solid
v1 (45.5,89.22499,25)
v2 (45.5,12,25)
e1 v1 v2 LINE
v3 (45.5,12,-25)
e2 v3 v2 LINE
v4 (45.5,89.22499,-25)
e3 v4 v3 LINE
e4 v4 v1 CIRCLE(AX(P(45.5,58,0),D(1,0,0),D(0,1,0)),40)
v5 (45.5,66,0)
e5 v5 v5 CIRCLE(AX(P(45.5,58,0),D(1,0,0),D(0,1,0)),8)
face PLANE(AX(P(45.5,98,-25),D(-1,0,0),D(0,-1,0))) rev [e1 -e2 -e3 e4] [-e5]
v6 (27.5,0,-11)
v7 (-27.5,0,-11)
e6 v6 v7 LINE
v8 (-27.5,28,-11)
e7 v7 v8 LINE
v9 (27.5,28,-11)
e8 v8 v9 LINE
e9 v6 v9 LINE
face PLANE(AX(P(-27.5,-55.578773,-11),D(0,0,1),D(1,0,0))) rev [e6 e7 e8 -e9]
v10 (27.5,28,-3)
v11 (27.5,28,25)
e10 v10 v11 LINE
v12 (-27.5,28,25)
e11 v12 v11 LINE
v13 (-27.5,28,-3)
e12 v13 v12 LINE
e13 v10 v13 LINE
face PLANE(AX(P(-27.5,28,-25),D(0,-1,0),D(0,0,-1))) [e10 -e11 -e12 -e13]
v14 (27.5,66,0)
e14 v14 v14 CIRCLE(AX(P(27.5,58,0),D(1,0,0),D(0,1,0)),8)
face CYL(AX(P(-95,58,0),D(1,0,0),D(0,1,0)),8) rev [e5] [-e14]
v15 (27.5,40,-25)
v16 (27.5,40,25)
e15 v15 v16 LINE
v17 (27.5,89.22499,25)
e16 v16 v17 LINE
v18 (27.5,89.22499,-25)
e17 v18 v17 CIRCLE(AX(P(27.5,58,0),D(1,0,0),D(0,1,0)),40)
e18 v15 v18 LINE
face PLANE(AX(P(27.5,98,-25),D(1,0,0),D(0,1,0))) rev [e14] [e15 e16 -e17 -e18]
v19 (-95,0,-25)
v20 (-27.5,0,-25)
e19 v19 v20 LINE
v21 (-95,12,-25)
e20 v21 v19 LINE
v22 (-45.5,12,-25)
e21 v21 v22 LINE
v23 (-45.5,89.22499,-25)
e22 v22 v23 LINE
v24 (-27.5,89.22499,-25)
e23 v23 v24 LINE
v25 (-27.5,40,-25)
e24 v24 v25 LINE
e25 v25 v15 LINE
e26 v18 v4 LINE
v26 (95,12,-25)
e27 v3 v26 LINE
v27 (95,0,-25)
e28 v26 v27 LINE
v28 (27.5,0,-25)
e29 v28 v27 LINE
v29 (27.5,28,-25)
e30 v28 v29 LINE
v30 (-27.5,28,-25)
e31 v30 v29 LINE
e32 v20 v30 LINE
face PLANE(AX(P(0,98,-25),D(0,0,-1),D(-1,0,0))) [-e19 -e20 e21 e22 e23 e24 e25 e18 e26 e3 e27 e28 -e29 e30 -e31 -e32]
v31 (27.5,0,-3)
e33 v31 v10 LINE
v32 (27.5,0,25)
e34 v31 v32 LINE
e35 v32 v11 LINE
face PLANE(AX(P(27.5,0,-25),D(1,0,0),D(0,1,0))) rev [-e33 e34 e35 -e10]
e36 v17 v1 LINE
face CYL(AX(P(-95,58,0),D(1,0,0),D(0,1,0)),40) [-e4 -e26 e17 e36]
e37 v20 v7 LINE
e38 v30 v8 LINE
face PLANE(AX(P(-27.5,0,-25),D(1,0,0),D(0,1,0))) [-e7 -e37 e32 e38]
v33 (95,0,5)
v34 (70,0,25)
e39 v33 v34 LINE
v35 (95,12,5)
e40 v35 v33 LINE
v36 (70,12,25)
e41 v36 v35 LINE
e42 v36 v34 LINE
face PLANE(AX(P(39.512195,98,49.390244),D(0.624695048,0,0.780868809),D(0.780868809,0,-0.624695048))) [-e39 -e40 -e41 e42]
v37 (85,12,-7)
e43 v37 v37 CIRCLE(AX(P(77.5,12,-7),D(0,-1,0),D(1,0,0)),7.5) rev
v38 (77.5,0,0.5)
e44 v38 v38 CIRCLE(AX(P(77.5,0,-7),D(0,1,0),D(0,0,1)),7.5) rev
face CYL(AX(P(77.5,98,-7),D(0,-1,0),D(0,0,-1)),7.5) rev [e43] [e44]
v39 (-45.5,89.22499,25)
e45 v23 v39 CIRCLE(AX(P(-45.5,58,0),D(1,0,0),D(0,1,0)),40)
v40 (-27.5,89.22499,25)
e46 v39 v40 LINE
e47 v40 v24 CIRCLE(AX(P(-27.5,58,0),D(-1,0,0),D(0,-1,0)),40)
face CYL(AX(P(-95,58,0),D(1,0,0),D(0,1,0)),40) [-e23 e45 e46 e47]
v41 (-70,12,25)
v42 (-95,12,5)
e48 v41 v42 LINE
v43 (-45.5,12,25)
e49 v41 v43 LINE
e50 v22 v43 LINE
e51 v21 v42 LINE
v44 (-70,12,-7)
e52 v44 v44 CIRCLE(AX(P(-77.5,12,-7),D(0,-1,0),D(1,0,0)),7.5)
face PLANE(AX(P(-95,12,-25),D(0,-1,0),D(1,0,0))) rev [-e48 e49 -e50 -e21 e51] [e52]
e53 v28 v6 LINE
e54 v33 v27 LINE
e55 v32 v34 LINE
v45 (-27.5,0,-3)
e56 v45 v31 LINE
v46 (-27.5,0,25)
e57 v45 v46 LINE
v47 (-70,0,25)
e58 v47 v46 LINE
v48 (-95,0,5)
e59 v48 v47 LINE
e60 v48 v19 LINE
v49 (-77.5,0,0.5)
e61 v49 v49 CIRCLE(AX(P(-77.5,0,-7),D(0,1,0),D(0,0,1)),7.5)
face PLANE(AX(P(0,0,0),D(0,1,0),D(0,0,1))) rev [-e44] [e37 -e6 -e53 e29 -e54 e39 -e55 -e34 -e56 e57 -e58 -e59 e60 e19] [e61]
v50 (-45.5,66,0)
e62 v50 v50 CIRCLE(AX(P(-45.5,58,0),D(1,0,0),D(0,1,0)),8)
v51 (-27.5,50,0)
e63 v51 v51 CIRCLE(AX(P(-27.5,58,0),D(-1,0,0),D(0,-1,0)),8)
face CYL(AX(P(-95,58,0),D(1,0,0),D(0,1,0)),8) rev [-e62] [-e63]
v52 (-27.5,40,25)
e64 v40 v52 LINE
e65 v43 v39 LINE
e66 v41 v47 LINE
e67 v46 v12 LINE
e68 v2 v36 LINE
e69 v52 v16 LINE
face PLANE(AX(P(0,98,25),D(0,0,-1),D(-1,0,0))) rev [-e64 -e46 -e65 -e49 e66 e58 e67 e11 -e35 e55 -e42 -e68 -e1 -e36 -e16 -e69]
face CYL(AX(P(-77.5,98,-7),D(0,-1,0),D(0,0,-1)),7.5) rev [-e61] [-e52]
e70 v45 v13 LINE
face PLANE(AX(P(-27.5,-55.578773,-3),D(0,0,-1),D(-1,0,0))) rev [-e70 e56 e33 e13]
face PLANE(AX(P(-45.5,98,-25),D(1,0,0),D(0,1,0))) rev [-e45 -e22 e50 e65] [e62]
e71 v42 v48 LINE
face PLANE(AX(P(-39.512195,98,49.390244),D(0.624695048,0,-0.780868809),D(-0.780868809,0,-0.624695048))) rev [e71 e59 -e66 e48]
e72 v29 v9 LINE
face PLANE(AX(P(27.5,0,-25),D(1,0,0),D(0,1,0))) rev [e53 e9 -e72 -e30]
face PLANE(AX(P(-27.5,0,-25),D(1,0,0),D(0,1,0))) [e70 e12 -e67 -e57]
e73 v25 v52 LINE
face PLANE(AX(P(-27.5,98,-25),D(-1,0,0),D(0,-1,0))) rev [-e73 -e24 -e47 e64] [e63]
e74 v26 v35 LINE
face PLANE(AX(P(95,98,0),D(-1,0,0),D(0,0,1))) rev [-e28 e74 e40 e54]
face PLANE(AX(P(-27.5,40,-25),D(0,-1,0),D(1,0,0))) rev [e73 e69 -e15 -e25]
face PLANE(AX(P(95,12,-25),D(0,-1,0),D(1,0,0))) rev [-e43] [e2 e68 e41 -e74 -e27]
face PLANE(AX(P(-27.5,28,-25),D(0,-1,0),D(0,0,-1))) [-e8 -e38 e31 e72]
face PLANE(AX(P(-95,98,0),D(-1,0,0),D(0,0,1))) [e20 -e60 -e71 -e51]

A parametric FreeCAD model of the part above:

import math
import FreeCAD as App
import Part
import Sketcher
Q = App.Units.Quantity

doc = App.newDocument("Part")
params = doc.addObject("Spreadsheet::Sheet", "Params")
for row, (alias, value) in enumerate([
    ("sketch1_diameter", "15 mm"),
    ("sketch1_width", "140 mm"),
    ("sketch1_width2", "190 mm"),
    ("sketch1_height", "30 mm"),
    ("pad1_length", "98 mm"),
    ("sketch2_width", "55 mm"),
    ("sketch2_height", "86 mm"),
    ("sketch2_height2", "58 mm"),
    ("sketch2_width2", "49.5 mm"),
    ("sketch3_width", "55 mm"),
    ("sketch3_height", "28 mm"),
    ("sketch4_width", "55 mm"),
    ("sketch4_height", "8 mm"),
    ("pad2_length", "28 mm"),
    ("sketch5_diameter", "16 mm"),
    ("sketch5_radius", "40 mm"),
    ("sketch5_height", "25 mm"),
], start=1):
    params.set(f"A{row}", alias)
    params.set(f"B{row}", "=" + value)
    params.setAlias(f"B{row}", alias)

body = doc.addObject("PartDesign::Body", "Body")

# Sketch on XZ plane
sketch1 = body.newObject("Sketcher::SketchObject", "Sketch")
sketch1.AttachmentSupport = (doc.getObject("XZ_Plane"), [""])
sketch1.MapMode = "FlatFace"
sketch1.addGeometry([
    Part.LineSegment(App.Vector(-95, -25, 0), App.Vector(-95, 5, 0)),  # 0
    Part.LineSegment(App.Vector(-95, 5, 0), App.Vector(-70, 25, 0)),  # 1
    Part.LineSegment(App.Vector(-70, 25, 0), App.Vector(70, 25, 0)),  # 2
    Part.LineSegment(App.Vector(70, 25, 0), App.Vector(95, 5, 0)),  # 3
    Part.LineSegment(App.Vector(95, 5, 0), App.Vector(95, -25, 0)),  # 4
    Part.LineSegment(App.Vector(95, -25, 0), App.Vector(-95, -25, 0)),  # 5
    Part.Circle(App.Vector(-77.5, -7, 0), App.Vector(0, 0, 1), 7.5),  # 6
    Part.Circle(App.Vector(77.5, -7, 0), App.Vector(0, 0, 1), 7.5),  # 7
], False)
sketch1.addConstraint([
    Sketcher.Constraint("Coincident", 0, 2, 1, 1),
    Sketcher.Constraint("Coincident", 1, 2, 2, 1),
    Sketcher.Constraint("Coincident", 2, 2, 3, 1),
    Sketcher.Constraint("Coincident", 3, 2, 4, 1),
    Sketcher.Constraint("Coincident", 4, 2, 5, 1),
    Sketcher.Constraint("Coincident", 5, 2, 0, 1),
    Sketcher.Constraint("Vertical", 0),
    Sketcher.Constraint("Horizontal", 2),
    Sketcher.Constraint("Vertical", 4),
    Sketcher.Constraint("Horizontal", 5),
    Sketcher.Constraint("Equal", 6, 7),
    Sketcher.Constraint("Symmetric", 6, 3, 7, 3, -2),
    Sketcher.Constraint("Symmetric", 0, 2, 3, 2, -2),
    Sketcher.Constraint("Equal", 1, 3),
    Sketcher.Constraint("Diameter", 6, Q("15 mm")),
    Sketcher.Constraint("DistanceX", 2, 1, 2, 2, Q("140 mm")),
    Sketcher.Constraint("DistanceX", 5, 2, 5, 1, Q("190 mm")),
    Sketcher.Constraint("DistanceY", 0, 1, 0, 2, Q("30 mm")),
    Sketcher.Constraint("DistanceY", 6, 3, -1, 1, Q("7 mm")),
    Sketcher.Constraint("DistanceY", -1, 1, 0, 2, Q("5 mm")),
    Sketcher.Constraint("DistanceY", -1, 1, 1, 2, Q("25 mm")),
    Sketcher.Constraint("DistanceX", 6, 3, 7, 3, Q("155 mm")),
])
sketch1.setExpression("Constraints[14]", "Params.sketch1_diameter")
sketch1.setExpression("Constraints[15]", "Params.sketch1_width")
sketch1.setExpression("Constraints[16]", "Params.sketch1_width2")
sketch1.setExpression("Constraints[17]", "Params.sketch1_height")
pad1 = body.newObject("PartDesign::Pad", "Pad")
pad1.Profile = sketch1
pad1.setExpression("Length", "Params.pad1_length")
pad1.Reversed = True

# Sketch on XY plane
sketch2 = body.newObject("Sketcher::SketchObject", "Sketch001")
sketch2.AttachmentSupport = (doc.getObject("XY_Plane"), [""])
sketch2.MapMode = "FlatFace"
sketch2.AttachmentOffset = App.Placement(App.Vector(0, 0, 25), App.Rotation())
sketch2.addGeometry([
    Part.LineSegment(App.Vector(-95, 98, 0), App.Vector(-95, 12, 0)),  # 0
    Part.LineSegment(App.Vector(-95, 12, 0), App.Vector(-45.5, 12, 0)),  # 1
    Part.LineSegment(App.Vector(-45.5, 12, 0), App.Vector(-45.5, 98, 0)),  # 2
    Part.LineSegment(App.Vector(-45.5, 98, 0), App.Vector(-95, 98, 0)),  # 3
    Part.LineSegment(App.Vector(45.5, 98, 0), App.Vector(45.5, 12, 0)),  # 4
    Part.LineSegment(App.Vector(45.5, 12, 0), App.Vector(95, 12, 0)),  # 5
    Part.LineSegment(App.Vector(95, 12, 0), App.Vector(95, 98, 0)),  # 6
    Part.LineSegment(App.Vector(95, 98, 0), App.Vector(45.5, 98, 0)),  # 7
    Part.LineSegment(App.Vector(-27.5, 98, 0), App.Vector(-27.5, 40, 0)),  # 8
    Part.LineSegment(App.Vector(-27.5, 40, 0), App.Vector(27.5, 40, 0)),  # 9
    Part.LineSegment(App.Vector(27.5, 40, 0), App.Vector(27.5, 98, 0)),  # 10
    Part.LineSegment(App.Vector(27.5, 98, 0), App.Vector(-27.5, 98, 0)),  # 11
], False)
sketch2.addConstraint([
    Sketcher.Constraint("Coincident", 0, 2, 1, 1),
    Sketcher.Constraint("Coincident", 1, 2, 2, 1),
    Sketcher.Constraint("Coincident", 2, 2, 3, 1),
    Sketcher.Constraint("Coincident", 3, 2, 0, 1),
    Sketcher.Constraint("Coincident", 4, 2, 5, 1),
    Sketcher.Constraint("Coincident", 5, 2, 6, 1),
    Sketcher.Constraint("Coincident", 6, 2, 7, 1),
    Sketcher.Constraint("Coincident", 7, 2, 4, 1),
    Sketcher.Constraint("Coincident", 8, 2, 9, 1),
    Sketcher.Constraint("Coincident", 9, 2, 10, 1),
    Sketcher.Constraint("Coincident", 10, 2, 11, 1),
    Sketcher.Constraint("Coincident", 11, 2, 8, 1),
    Sketcher.Constraint("Vertical", 0),
    Sketcher.Constraint("Horizontal", 1),
    Sketcher.Constraint("Vertical", 2),
    Sketcher.Constraint("Horizontal", 3),
    Sketcher.Constraint("Vertical", 4),
    Sketcher.Constraint("Horizontal", 5),
    Sketcher.Constraint("Vertical", 6),
    Sketcher.Constraint("Horizontal", 7),
    Sketcher.Constraint("Vertical", 8),
    Sketcher.Constraint("Horizontal", 9),
    Sketcher.Constraint("Vertical", 10),
    Sketcher.Constraint("Horizontal", 11),
    Sketcher.Constraint("Symmetric", 1, 2, 4, 2, -2),
    Sketcher.Constraint("Symmetric", 3, 2, 6, 2, -2),
    Sketcher.Constraint("Horizontal", 7, 2, 10, 2),
    Sketcher.Constraint("DistanceX", 9, 1, 9, 2, Q("55 mm")),
    Sketcher.Constraint("DistanceY", 0, 2, 0, 1, Q("86 mm")),
    Sketcher.Constraint("DistanceY", 8, 2, 8, 1, Q("58 mm")),
    Sketcher.Constraint("DistanceX", 1, 1, 1, 2, Q("49.5 mm")),
    Sketcher.Constraint("DistanceX", 0, 2, -1, 1, Q("95 mm")),
    Sketcher.Constraint("DistanceY", -1, 1, 0, 2, Q("12 mm")),
    Sketcher.Constraint("DistanceX", 1, 2, 8, 2, Q("18 mm")),
])
sketch2.setExpression("Constraints[27]", "Params.sketch2_width")
sketch2.setExpression("Constraints[28]", "Params.sketch2_height")
sketch2.setExpression("Constraints[29]", "Params.sketch2_height2")
sketch2.setExpression("Constraints[30]", "Params.sketch2_width2")
pocket1 = body.newObject("PartDesign::Pocket", "Pocket")
pocket1.Profile = sketch2
pocket1.Type = "ThroughAll"

# Sketch on XY plane
sketch3 = body.newObject("Sketcher::SketchObject", "Sketch002")
sketch3.AttachmentSupport = (doc.getObject("XY_Plane"), [""])
sketch3.MapMode = "FlatFace"
sketch3.AttachmentOffset = App.Placement(App.Vector(0, 0, 25), App.Rotation())
sketch3.addGeometry([
    Part.LineSegment(App.Vector(-27.5, 28, 0), App.Vector(-27.5, 0, 0)),
    Part.LineSegment(App.Vector(-27.5, 0, 0), App.Vector(27.5, 0, 0)),
    Part.LineSegment(App.Vector(27.5, 0, 0), App.Vector(27.5, 28, 0)),
    Part.LineSegment(App.Vector(27.5, 28, 0), App.Vector(-27.5, 28, 0)),
], False)
sketch3.addConstraint([
    Sketcher.Constraint("Coincident", 0, 2, 1, 1),
    Sketcher.Constraint("Coincident", 1, 2, 2, 1),
    Sketcher.Constraint("Coincident", 2, 2, 3, 1),
    Sketcher.Constraint("Coincident", 3, 2, 0, 1),
    Sketcher.Constraint("Vertical", 0),
    Sketcher.Constraint("Horizontal", 1),
    Sketcher.Constraint("Vertical", 2),
    Sketcher.Constraint("Horizontal", 3),
    Sketcher.Constraint("Symmetric", 0, 2, 1, 2, -1, 1),
    Sketcher.Constraint("DistanceX", 1, 1, 1, 2, Q("55 mm")),
    Sketcher.Constraint("DistanceY", 0, 2, 0, 1, Q("28 mm")),
])
sketch3.setExpression("Constraints[9]", "Params.sketch3_width")
sketch3.setExpression("Constraints[10]", "Params.sketch3_height")
pocket2 = body.newObject("PartDesign::Pocket", "Pocket001")
pocket2.Profile = sketch3
pocket2.Type = "ThroughAll"

# Sketch on XZ plane
sketch4 = body.newObject("Sketcher::SketchObject", "Sketch003")
sketch4.AttachmentSupport = (doc.getObject("XZ_Plane"), [""])
sketch4.MapMode = "FlatFace"
sketch4.AttachmentOffset = App.Placement(App.Vector(0, 0, -28), App.Rotation())
sketch4.addGeometry([
    Part.LineSegment(App.Vector(-27.5, -3, 0), App.Vector(-27.5, -11, 0)),
    Part.LineSegment(App.Vector(-27.5, -11, 0), App.Vector(27.5, -11, 0)),
    Part.LineSegment(App.Vector(27.5, -11, 0), App.Vector(27.5, -3, 0)),
    Part.LineSegment(App.Vector(27.5, -3, 0), App.Vector(-27.5, -3, 0)),
], False)
sketch4.addConstraint([
    Sketcher.Constraint("Coincident", 0, 2, 1, 1),
    Sketcher.Constraint("Coincident", 1, 2, 2, 1),
    Sketcher.Constraint("Coincident", 2, 2, 3, 1),
    Sketcher.Constraint("Coincident", 3, 2, 0, 1),
    Sketcher.Constraint("Vertical", 0),
    Sketcher.Constraint("Horizontal", 1),
    Sketcher.Constraint("Vertical", 2),
    Sketcher.Constraint("Horizontal", 3),
    Sketcher.Constraint("DistanceX", 1, 1, 1, 2, Q("55 mm")),
    Sketcher.Constraint("DistanceY", 0, 2, 0, 1, Q("8 mm")),
    Sketcher.Constraint("DistanceY", 0, 2, -1, 1, Q("11 mm")),
    Sketcher.Constraint("DistanceX", 0, 2, -1, 1, Q("27.5 mm")),
])
sketch4.setExpression("Constraints[8]", "Params.sketch4_width")
sketch4.setExpression("Constraints[9]", "Params.sketch4_height")
pad2 = body.newObject("PartDesign::Pad", "Pad001")
pad2.Profile = sketch4
pad2.setExpression("Length", "Params.pad2_length")

# Sketch on YZ plane
sketch5 = body.newObject("Sketcher::SketchObject", "Sketch004")
sketch5.AttachmentSupport = (doc.getObject("YZ_Plane"), [""])
sketch5.MapMode = "FlatFace"
sketch5.AttachmentOffset = App.Placement(App.Vector(0, 0, 45.5), App.Rotation())
sketch5.addGeometry([
    Part.ArcOfCircle(Part.Circle(App.Vector(58, 0, 0), App.Vector(0, 0, 1), 40), math.radians(-38.682187), math.radians(0)),  # 0
    Part.LineSegment(App.Vector(89.22499, -25, 0), App.Vector(98, -25, 0)),  # 1
    Part.LineSegment(App.Vector(98, -25, 0), App.Vector(98, 0, 0)),  # 2
    Part.ArcOfCircle(Part.Circle(App.Vector(58, 0, 0), App.Vector(0, 0, 1), 40), math.radians(0), math.radians(38.682187)),  # 3
    Part.LineSegment(App.Vector(98, 0, 0), App.Vector(98, 25, 0)),  # 4
    Part.LineSegment(App.Vector(98, 25, 0), App.Vector(89.22499, 25, 0)),  # 5
    Part.Circle(App.Vector(58, 0, 0), App.Vector(0, 0, 1), 8),  # 6
], False)
sketch5.addConstraint([
    Sketcher.Constraint("Coincident", 0, 1, 1, 1),
    Sketcher.Constraint("Coincident", 1, 2, 2, 1),
    Sketcher.Constraint("Tangent", 2, 2, 0, 2),
    Sketcher.Constraint("Tangent", 3, 1, 4, 1),
    Sketcher.Constraint("Coincident", 4, 2, 5, 1),
    Sketcher.Constraint("Coincident", 5, 2, 3, 2),
    Sketcher.Constraint("Horizontal", 1),
    Sketcher.Constraint("Vertical", 2),
    Sketcher.Constraint("Vertical", 4),
    Sketcher.Constraint("Horizontal", 5),
    Sketcher.Constraint("Coincident", 3, 3, 0, 3),
    Sketcher.Constraint("Coincident", 6, 3, 0, 3),
    Sketcher.Constraint("Equal", 0, 3),
    Sketcher.Constraint("Symmetric", 0, 1, 5, 2, -1),
    Sketcher.Constraint("Diameter", 6, Q("16 mm")),
    Sketcher.Constraint("Radius", 0, Q("40 mm")),
    Sketcher.Constraint("DistanceY", 2, 1, 2, 2, Q("25 mm")),
    Sketcher.Constraint("DistanceX", -1, 1, 0, 3, Q("58 mm")),
])
sketch5.setExpression("Constraints[14]", "Params.sketch5_diameter")
sketch5.setExpression("Constraints[15]", "Params.sketch5_radius")
sketch5.setExpression("Constraints[16]", "Params.sketch5_height")
pocket3 = body.newObject("PartDesign::Pocket", "Pocket002")
pocket3.Profile = sketch5
pocket3.Type = "ThroughAll"

doc.recompute()
